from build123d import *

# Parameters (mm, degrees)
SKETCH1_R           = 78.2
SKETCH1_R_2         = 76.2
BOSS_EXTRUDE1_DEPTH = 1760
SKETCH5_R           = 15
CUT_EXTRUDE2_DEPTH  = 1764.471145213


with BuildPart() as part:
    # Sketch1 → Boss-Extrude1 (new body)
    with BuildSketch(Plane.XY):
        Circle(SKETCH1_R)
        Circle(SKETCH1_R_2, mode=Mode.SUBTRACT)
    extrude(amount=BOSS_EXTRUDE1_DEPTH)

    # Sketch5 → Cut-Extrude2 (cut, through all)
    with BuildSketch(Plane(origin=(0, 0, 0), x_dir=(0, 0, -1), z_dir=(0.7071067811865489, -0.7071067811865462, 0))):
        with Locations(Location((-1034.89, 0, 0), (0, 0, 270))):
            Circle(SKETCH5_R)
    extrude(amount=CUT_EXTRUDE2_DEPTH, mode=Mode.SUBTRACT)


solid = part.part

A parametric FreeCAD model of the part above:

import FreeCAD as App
import Part
import Sketcher
Q = App.Units.Quantity

doc = App.newDocument("Part")
body = doc.addObject("PartDesign::Body", "Body")

# Sketch on XY plane
sketch1 = doc.addObject("Sketcher::SketchObject", "Sketch")
body.addObject(sketch1)
sketch1.AttachmentSupport = (doc.XY_Plane, [""])
sketch1.MapMode = "FlatFace"
sketch1.addGeometry(Part.Circle(App.Vector(0, 0, 0), App.Vector(0, 0, 1), 78.2), False)
sketch1.addGeometry(Part.Circle(App.Vector(0, 0, 0), App.Vector(0, 0, 1), 76.2), False)
sketch1.addConstraint(Sketcher.Constraint("Coincident", 0, 3, -1, 1))
sketch1.addConstraint(Sketcher.Constraint("Coincident", 1, 3, -1, 1))
sketch1.addConstraint(Sketcher.Constraint("Diameter", 0, Q("156.4 mm")))
sketch1.addConstraint(Sketcher.Constraint("Diameter", 1, Q("152.4 mm")))
pad1 = doc.addObject("PartDesign::Pad", "Pad")
body.addObject(pad1)
pad1.Profile = sketch1
pad1.Length = 1760

# Sketch on an angled plane
sketch2 = doc.addObject("Sketcher::SketchObject", "Sketch001")
body.addObject(sketch2)
sketch2.Placement = App.Placement(App.Vector(0, 0, 0), App.Rotation(App.Vector(0, 0, -1), App.Vector(0.707106781, 0.707106781, 0), App.Vector(0.707106781, -0.707106781, 0), "ZXY"))
sketch2.addGeometry(Part.Circle(App.Vector(-1034.89, 0, 0), App.Vector(0, 0, 1), 15), False)
sketch2.addConstraint(Sketcher.Constraint("PointOnObject", 0, 3, -1))
sketch2.addConstraint(Sketcher.Constraint("Diameter", 0, Q("30 mm")))
sketch2.addConstraint(Sketcher.Constraint("DistanceX", 0, 3, -1, 1, Q("1034.89 mm")))
pocket1 = doc.addObject("PartDesign::Pocket", "Pocket")
body.addObject(pocket1)
pocket1.Profile = sketch2
pocket1.Type = "ThroughAll"
pocket1.Reversed = True

doc.recompute()
